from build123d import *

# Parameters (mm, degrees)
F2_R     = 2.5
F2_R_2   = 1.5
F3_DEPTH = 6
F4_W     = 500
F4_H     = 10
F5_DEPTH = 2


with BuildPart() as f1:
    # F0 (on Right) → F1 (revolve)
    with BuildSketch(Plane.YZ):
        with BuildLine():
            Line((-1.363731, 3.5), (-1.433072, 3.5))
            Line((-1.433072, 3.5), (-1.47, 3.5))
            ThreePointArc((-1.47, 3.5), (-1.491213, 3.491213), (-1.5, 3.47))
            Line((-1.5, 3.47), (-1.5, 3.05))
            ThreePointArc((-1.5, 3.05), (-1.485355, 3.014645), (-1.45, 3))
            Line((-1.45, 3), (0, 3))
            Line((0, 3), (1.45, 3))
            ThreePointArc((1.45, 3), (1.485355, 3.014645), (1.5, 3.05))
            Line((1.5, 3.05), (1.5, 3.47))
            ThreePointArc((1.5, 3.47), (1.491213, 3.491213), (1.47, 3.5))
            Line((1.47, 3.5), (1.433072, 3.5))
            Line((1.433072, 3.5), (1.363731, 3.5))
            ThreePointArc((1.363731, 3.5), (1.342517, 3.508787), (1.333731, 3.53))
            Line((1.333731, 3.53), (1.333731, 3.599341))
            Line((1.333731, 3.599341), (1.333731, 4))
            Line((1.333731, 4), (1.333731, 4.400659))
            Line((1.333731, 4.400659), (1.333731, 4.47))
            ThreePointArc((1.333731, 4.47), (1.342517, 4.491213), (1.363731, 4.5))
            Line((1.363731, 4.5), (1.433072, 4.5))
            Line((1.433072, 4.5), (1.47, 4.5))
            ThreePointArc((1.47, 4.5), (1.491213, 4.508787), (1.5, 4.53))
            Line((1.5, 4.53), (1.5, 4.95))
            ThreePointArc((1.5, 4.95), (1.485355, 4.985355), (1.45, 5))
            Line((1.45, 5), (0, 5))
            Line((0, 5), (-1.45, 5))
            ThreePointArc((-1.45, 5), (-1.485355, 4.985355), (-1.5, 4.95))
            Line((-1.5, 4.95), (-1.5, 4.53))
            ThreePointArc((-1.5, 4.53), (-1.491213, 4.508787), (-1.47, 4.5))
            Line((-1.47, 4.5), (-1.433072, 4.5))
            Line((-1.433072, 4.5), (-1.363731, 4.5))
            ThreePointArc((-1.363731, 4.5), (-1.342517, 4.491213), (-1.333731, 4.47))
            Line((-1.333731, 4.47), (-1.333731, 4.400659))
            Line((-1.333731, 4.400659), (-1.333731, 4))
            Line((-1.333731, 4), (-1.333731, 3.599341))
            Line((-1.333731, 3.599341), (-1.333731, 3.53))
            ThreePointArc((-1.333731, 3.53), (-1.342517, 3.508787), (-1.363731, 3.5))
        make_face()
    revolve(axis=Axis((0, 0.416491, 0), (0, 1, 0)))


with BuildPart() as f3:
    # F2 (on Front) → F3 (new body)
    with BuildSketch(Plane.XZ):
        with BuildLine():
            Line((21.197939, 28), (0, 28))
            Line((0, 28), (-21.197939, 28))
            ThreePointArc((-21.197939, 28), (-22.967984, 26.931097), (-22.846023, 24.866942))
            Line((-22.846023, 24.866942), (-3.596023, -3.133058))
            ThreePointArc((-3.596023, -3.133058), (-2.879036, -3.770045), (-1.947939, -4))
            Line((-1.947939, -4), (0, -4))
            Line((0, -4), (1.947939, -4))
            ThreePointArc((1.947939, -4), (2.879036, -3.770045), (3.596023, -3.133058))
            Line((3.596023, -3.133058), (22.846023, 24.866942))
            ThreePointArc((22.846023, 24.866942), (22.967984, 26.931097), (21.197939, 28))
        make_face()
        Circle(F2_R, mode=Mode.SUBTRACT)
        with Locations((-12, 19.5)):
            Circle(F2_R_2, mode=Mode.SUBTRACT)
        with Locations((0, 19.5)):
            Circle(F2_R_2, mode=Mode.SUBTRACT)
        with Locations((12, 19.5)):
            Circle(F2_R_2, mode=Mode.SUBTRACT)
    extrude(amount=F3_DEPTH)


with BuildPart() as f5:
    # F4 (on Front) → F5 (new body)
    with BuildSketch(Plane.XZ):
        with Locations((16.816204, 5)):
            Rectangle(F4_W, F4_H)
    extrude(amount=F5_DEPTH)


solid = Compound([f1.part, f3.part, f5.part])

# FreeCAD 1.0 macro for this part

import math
import FreeCAD as App
import Part
import Sketcher

V = App.Vector


def add_polygon(sketch, points):
    """Adds a closed chain of lines whose ends are joined by coincident constraints."""
    first, n = sketch.GeometryCount, len(points)
    for a, b in zip(points, points[1:] + points[:1]):
        sketch.addGeometry(Part.LineSegment(App.Vector(*a, 0), App.Vector(*b, 0)), False)
    for i in range(n):
        sketch.addConstraint(Sketcher.Constraint("Coincident", first + i, 2, first + (i + 1) % n, 1))

doc = App.newDocument("Part")
body = doc.addObject("PartDesign::Body", "Body")

# Sketch on YZ plane
sketch1 = body.newObject("Sketcher::SketchObject", "Sketch")
sketch1.AttachmentSupport = (doc.getObject("YZ_Plane"), [""])
sketch1.MapMode = "FlatFace"
sketch1.addGeometry([
    Part.LineSegment(V(-1.363731, 3.5, 0), V(-1.47, 3.5, 0)),  # 0
    Part.ArcOfCircle(Part.Circle(V(-1.469999, 3.469999, 0), V(0, 0, 1), 0.030001), math.radians(90.001327), math.radians(179.998673)),  # 1
    Part.LineSegment(V(-1.5, 3.47, 0), V(-1.5, 3.05, 0)),  # 2
    Part.ArcOfCircle(Part.Circle(V(-1.449999, 3.050001, 0), V(0, 0, 1), 0.050001), math.radians(-179.998673), math.radians(-90.001327)),  # 3
    Part.LineSegment(V(-1.45, 3, 0), V(1.45, 3, 0)),  # 4
    Part.ArcOfCircle(Part.Circle(V(1.449999, 3.050001, 0), V(0, 0, 1), 0.050001), math.radians(-89.998673), math.radians(-0.001327)),  # 5
    Part.LineSegment(V(1.5, 3.05, 0), V(1.5, 3.47, 0)),  # 6
    Part.ArcOfCircle(Part.Circle(V(1.469999, 3.469999, 0), V(0, 0, 1), 0.030001), math.radians(0.001327), math.radians(89.998673)),  # 7
    Part.LineSegment(V(1.47, 3.5, 0), V(1.363731, 3.5, 0)),  # 8
    Part.ArcOfCircle(Part.Circle(V(1.36373, 3.529999, 0), V(0, 0, 1), 0.029999), math.radians(179.998065), math.radians(270.001935)),  # 9
    Part.LineSegment(V(1.333731, 3.53, 0), V(1.333731, 4.47, 0)),  # 10
    Part.ArcOfCircle(Part.Circle(V(1.36373, 4.470001, 0), V(0, 0, 1), 0.029999), math.radians(89.998065), math.radians(180.001935)),  # 11
    Part.LineSegment(V(1.363731, 4.5, 0), V(1.47, 4.5, 0)),  # 12
    Part.ArcOfCircle(Part.Circle(V(1.469999, 4.530001, 0), V(0, 0, 1), 0.030001), math.radians(-89.998673), math.radians(-0.001327)),  # 13
    Part.LineSegment(V(1.5, 4.53, 0), V(1.5, 4.95, 0)),  # 14
    Part.ArcOfCircle(Part.Circle(V(1.449999, 4.949999, 0), V(0, 0, 1), 0.050001), math.radians(0.001327), math.radians(89.998673)),  # 15
    Part.LineSegment(V(1.45, 5, 0), V(-1.45, 5, 0)),  # 16
    Part.ArcOfCircle(Part.Circle(V(-1.449999, 4.949999, 0), V(0, 0, 1), 0.050001), math.radians(90.001327), math.radians(179.998673)),  # 17
    Part.LineSegment(V(-1.5, 4.95, 0), V(-1.5, 4.53, 0)),  # 18
    Part.ArcOfCircle(Part.Circle(V(-1.469999, 4.530001, 0), V(0, 0, 1), 0.030001), math.radians(-179.998673), math.radians(-90.001327)),  # 19
    Part.LineSegment(V(-1.47, 4.5, 0), V(-1.363731, 4.5, 0)),  # 20
    Part.ArcOfCircle(Part.Circle(V(-1.36373, 4.470001, 0), V(0, 0, 1), 0.029999), math.radians(-0.001935), math.radians(90.001935)),  # 21
    Part.LineSegment(V(-1.333731, 4.47, 0), V(-1.333731, 3.53, 0)),  # 22
    Part.ArcOfCircle(Part.Circle(V(-1.36373, 3.529999, 0), V(0, 0, 1), 0.029999), math.radians(-90.001935), math.radians(0.001935)),  # 23
], False)
sketch1.addConstraint([
    Sketcher.Constraint("Coincident", 0, 2, 1, 1),
    Sketcher.Constraint("Coincident", 1, 2, 2, 1),
    Sketcher.Constraint("Coincident", 2, 2, 3, 1),
    Sketcher.Constraint("Coincident", 3, 2, 4, 1),
    Sketcher.Constraint("Coincident", 4, 2, 5, 1),
    Sketcher.Constraint("Coincident", 5, 2, 6, 1),
    Sketcher.Constraint("Coincident", 6, 2, 7, 1),
    Sketcher.Constraint("Coincident", 7, 2, 8, 1),
    Sketcher.Constraint("Coincident", 8, 2, 9, 2),
    Sketcher.Constraint("Coincident", 9, 1, 10, 1),
    Sketcher.Constraint("Coincident", 10, 2, 11, 2),
    Sketcher.Constraint("Coincident", 11, 1, 12, 1),
    Sketcher.Constraint("Coincident", 12, 2, 13, 1),
    Sketcher.Constraint("Coincident", 13, 2, 14, 1),
    Sketcher.Constraint("Coincident", 14, 2, 15, 1),
    Sketcher.Constraint("Coincident", 15, 2, 16, 1),
    Sketcher.Constraint("Coincident", 16, 2, 17, 1),
    Sketcher.Constraint("Coincident", 17, 2, 18, 1),
    Sketcher.Constraint("Coincident", 18, 2, 19, 1),
    Sketcher.Constraint("Coincident", 19, 2, 20, 1),
    Sketcher.Constraint("Coincident", 20, 2, 21, 2),
    Sketcher.Constraint("Coincident", 21, 1, 22, 1),
    Sketcher.Constraint("Coincident", 22, 2, 23, 2),
    Sketcher.Constraint("Coincident", 23, 1, 0, 1),
    Sketcher.Constraint("Horizontal", 0),
    Sketcher.Constraint("Vertical", 2),
    Sketcher.Constraint("Horizontal", 4),
    Sketcher.Constraint("Vertical", 6),
    Sketcher.Constraint("Horizontal", 8),
    Sketcher.Constraint("Vertical", 10),
    Sketcher.Constraint("Horizontal", 12),
    Sketcher.Constraint("Vertical", 14),
    Sketcher.Constraint("Horizontal", 16),
    Sketcher.Constraint("Vertical", 18),
    Sketcher.Constraint("Horizontal", 20),
    Sketcher.Constraint("Vertical", 22),
    Sketcher.Constraint("Equal", 3, 5),
    Sketcher.Constraint("Equal", 1, 7),
    Sketcher.Constraint("Equal", 7, 9),
    Sketcher.Constraint("Equal", 9, 11),
    Sketcher.Constraint("Equal", 11, 13),
    Sketcher.Constraint("Equal", 5, 15),
    Sketcher.Constraint("Equal", 15, 17),
    Sketcher.Constraint("Equal", 13, 19),
    Sketcher.Constraint("Equal", 19, 21),
    Sketcher.Constraint("Equal", 21, 23),
    Sketcher.Constraint("Symmetric", 1, 3, 7, 3, -2),
    Sketcher.Constraint("Symmetric", 13, 3, 19, 3, -2),
    Sketcher.Constraint("Symmetric", 10, 2, 21, 1, -2),
    Sketcher.Constraint("Horizontal", 7, 3, 1, 2),
    Sketcher.Constraint("Horizontal", 5, 3, 2, 2),
    Sketcher.Constraint("Horizontal", 2, 2, 5, 2),
    Sketcher.Constraint("Horizontal", 1, 2, 6, 2),
    Sketcher.Constraint("Horizontal", 23, 3, 9, 1),
    Sketcher.Constraint("Horizontal", 21, 3, 10, 2),
    Sketcher.Constraint("Horizontal", 19, 3, 13, 2),
    Sketcher.Constraint("Horizontal", 17, 3, 14, 2),
    Sketcher.Constraint("Horizontal", 14, 2, 17, 2),
    Sketcher.Constraint("Horizontal", 13, 2, 18, 2),
    Sketcher.Constraint("Horizontal", 9, 1, 22, 2),
    Sketcher.Constraint("Vertical", 7, 3, 13, 3),
    Sketcher.Constraint("Vertical", 19, 3, 0, 2),
    Sketcher.Constraint("Vertical", 17, 3, 3, 2),
    Sketcher.Constraint("Vertical", 15, 3, 4, 2),
    Sketcher.Constraint("Vertical", 13, 3, 7, 2),
    Sketcher.Constraint("Vertical", 11, 3, 8, 2),
    Sketcher.Constraint("Vertical", 8, 2, 11, 1),
    Sketcher.Constraint("Vertical", 7, 2, 12, 2),
    Sketcher.Constraint("Vertical", 4, 2, 15, 2),
    Sketcher.Constraint("Vertical", 3, 2, 16, 2),
    Sketcher.Constraint("Vertical", 0, 2, 19, 2),
    Sketcher.Constraint("Vertical", 23, 3, 20, 2),
    Sketcher.Constraint("Vertical", 20, 2, 23, 1),
    Sketcher.Constraint("Equal", 6, 14),
    Sketcher.Constraint("Radius", 1, 0.030001),
    Sketcher.Constraint("Radius", 3, 0.050001),
    Sketcher.Constraint("DistanceX", 4, 1, 4, 2, 2.9),
    Sketcher.Constraint("DistanceY", -1, 1, 3, 2, 3.0),
    Sketcher.Constraint("DistanceY", -1, 1, 15, 2, 5.0),
    Sketcher.Constraint("DistanceY", 7, 3, 11, 3, 1.000002),
    Sketcher.Constraint("DistanceX", 0, 2, 0, 1, 0.106269),
])
revolution = body.newObject("PartDesign::Revolution", "Revolution")
revolution.Profile = sketch1
revolution.ReferenceAxis = (sketch1, ["H_Axis"])
revolution.Angle = 360
body2 = doc.addObject("PartDesign::Body", "Body001")

# Sketch on XZ plane
sketch2 = body2.newObject("Sketcher::SketchObject", "Sketch001")
sketch2.AttachmentSupport = (doc.getObject("XZ_Plane001"), [""])
sketch2.MapMode = "FlatFace"
sketch2.addGeometry([
    Part.LineSegment(V(21.197939, 28, 0), V(-21.197939, 28, 0)),  # 0
    Part.ArcOfCircle(Part.Circle(V(-21.197939, 26, 0), V(0, 0, 1), 2), math.radians(89.999994), math.radians(214.50853)),  # 1
    Part.LineSegment(V(-22.846023, 24.866942, 0), V(-3.596023, -3.133058, 0)),  # 2
    Part.ArcOfCircle(Part.Circle(V(-1.94794, -2, 0), V(0, 0, 1), 2), math.radians(-145.49147), math.radians(-89.999983)),  # 3
    Part.LineSegment(V(-1.947939, -4, 0), V(1.947939, -4, 0)),  # 4
    Part.ArcOfCircle(Part.Circle(V(1.94794, -2, 0), V(0, 0, 1), 2), math.radians(-90.000017), math.radians(-34.50853)),  # 5
    Part.LineSegment(V(3.596023, -3.133058, 0), V(22.846023, 24.866942, 0)),  # 6
    Part.ArcOfCircle(Part.Circle(V(21.197939, 26, 0), V(0, 0, 1), 2), math.radians(-34.50853), math.radians(90.000006)),  # 7
    Part.Circle(V(0, 0, 0), V(0, 0, 1), 2.5),  # 8
    Part.Circle(V(-12, 19.5, 0), V(0, 0, 1), 1.5),  # 9
    Part.Circle(V(0, 19.5, 0), V(0, 0, 1), 1.5),  # 10
    Part.Circle(V(12, 19.5, 0), V(0, 0, 1), 1.5),  # 11
], False)
sketch2.addConstraint([
    Sketcher.Constraint("Tangent", 0, 2, 1, 1),
    Sketcher.Constraint("Tangent", 1, 2, 2, 1),
    Sketcher.Constraint("Tangent", 2, 2, 3, 1),
    Sketcher.Constraint("Tangent", 3, 2, 4, 1),
    Sketcher.Constraint("Tangent", 4, 2, 5, 1),
    Sketcher.Constraint("Tangent", 5, 2, 6, 1),
    Sketcher.Constraint("Tangent", 6, 2, 7, 1),
    Sketcher.Constraint("Tangent", 7, 2, 0, 1),
    Sketcher.Constraint("Horizontal", 0),
    Sketcher.Constraint("Horizontal", 4),
    Sketcher.Constraint("Coincident", 8, 3, -1, 1),
    Sketcher.Constraint("Equal", 1, 3),
    Sketcher.Constraint("Equal", 3, 5),
    Sketcher.Constraint("Equal", 5, 7),
    Sketcher.Constraint("Equal", 9, 10),
    Sketcher.Constraint("Equal", 10, 11),
    Sketcher.Constraint("Symmetric", 9, 3, 11, 3, -2),
    Sketcher.Constraint("Symmetric", 2, 2, 5, 2, -2),
    Sketcher.Constraint("PointOnObject", 10, 3, -2),
    Sketcher.Constraint("Horizontal", 9, 3, 10, 3),
    Sketcher.Constraint("Diameter", 8, 5.0),
    Sketcher.Constraint("Diameter", 9, 3.0),
    Sketcher.Constraint("Radius", 1, 2.0),
    Sketcher.Constraint("DistanceY", -1, 1, 1, 3, 26.0),
    Sketcher.Constraint("DistanceY", 3, 3, -1, 1, 2.0),
    Sketcher.Constraint("DistanceX", 9, 3, -1, 1, 12.0),
    Sketcher.Constraint("DistanceY", -1, 1, 9, 3, 19.5),
    Sketcher.Constraint("DistanceX", 1, 3, 3, 3, 19.25),
    Sketcher.Constraint("DistanceX", 0, 2, 0, 1, 42.395878),
])
pad1 = body2.newObject("PartDesign::Pad", "Pad")
pad1.Profile = sketch2
pad1.Length = 6
body3 = doc.addObject("PartDesign::Body", "Body002")

# Sketch on XZ plane
sketch3 = body3.newObject("Sketcher::SketchObject", "Sketch002")
sketch3.AttachmentSupport = (doc.getObject("XZ_Plane002"), [""])
sketch3.MapMode = "FlatFace"
add_polygon(sketch3, [(-233.183796, 10), (-233.183796, 0), (266.816204, 0), (266.816204, 10)])  # lines 0-3
sketch3.addConstraint([
    Sketcher.Constraint("Vertical", 0),
    Sketcher.Constraint("Horizontal", 1),
    Sketcher.Constraint("Vertical", 2),
    Sketcher.Constraint("Horizontal", 3),
    Sketcher.Constraint("PointOnObject", 0, 2, -1),
    Sketcher.Constraint("DistanceX", 1, 1, 1, 2, 500.0),
    Sketcher.Constraint("DistanceY", 0, 2, 0, 1, 10.0),
    Sketcher.Constraint("DistanceX", 0, 2, -1, 1, 233.183796),
])
pad2 = body3.newObject("PartDesign::Pad", "Pad001")
pad2.Profile = sketch3
pad2.Length = 2

doc.recompute()
